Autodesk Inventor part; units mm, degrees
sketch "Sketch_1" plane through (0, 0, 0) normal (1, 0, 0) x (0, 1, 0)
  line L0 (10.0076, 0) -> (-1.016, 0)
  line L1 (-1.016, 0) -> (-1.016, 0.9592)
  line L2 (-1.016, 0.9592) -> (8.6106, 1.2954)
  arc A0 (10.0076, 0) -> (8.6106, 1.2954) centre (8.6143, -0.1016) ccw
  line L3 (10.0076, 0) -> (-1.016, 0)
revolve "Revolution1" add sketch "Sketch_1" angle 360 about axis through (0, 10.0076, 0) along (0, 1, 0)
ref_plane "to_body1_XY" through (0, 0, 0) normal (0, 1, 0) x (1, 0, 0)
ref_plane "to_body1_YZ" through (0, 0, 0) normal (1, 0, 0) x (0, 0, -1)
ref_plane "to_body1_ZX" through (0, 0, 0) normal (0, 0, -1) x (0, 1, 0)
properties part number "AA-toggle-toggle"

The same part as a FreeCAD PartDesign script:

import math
import FreeCAD as App
import Part
import Sketcher
from FreeCAD import Vector
Q = App.Units.Quantity

doc = App.newDocument("Part")
body = doc.addObject("PartDesign::Body", "Body")

# Sketch on YZ plane
sketch1 = body.newObject("Sketcher::SketchObject", "Sketch")
sketch1.AttachmentSupport = (doc.getObject("YZ_Plane"), [""])
sketch1.MapMode = "FlatFace"
sketch1.addGeometry(Part.LineSegment(Vector(-1, 0, 0), Vector(10, 0, 0)), False)
sketch1.addGeometry(Part.ArcOfCircle(Part.Circle(Vector(8.6, -0.1, 0), Vector(0, 0, 1), 1.4), math.radians(4), math.radians(90)), False)
sketch1.addGeometry(Part.LineSegment(Vector(8.6, 1.3, 0), Vector(-1, 1, 0)), False)
sketch1.addGeometry(Part.LineSegment(Vector(-1, 1, 0), Vector(-1, 0, 0)), False)
sketch1.addConstraint(Sketcher.Constraint("Coincident", 0, 2, 1, 1))
sketch1.addConstraint(Sketcher.Constraint("Coincident", 1, 2, 2, 1))
sketch1.addConstraint(Sketcher.Constraint("Coincident", 2, 2, 3, 1))
sketch1.addConstraint(Sketcher.Constraint("Coincident", 3, 2, 0, 1))
sketch1.addConstraint(Sketcher.Constraint("Horizontal", 0))
sketch1.addConstraint(Sketcher.Constraint("Vertical", 3))
sketch1.addConstraint(Sketcher.Constraint("PointOnObject", 0, 2, -1))
sketch1.addConstraint(Sketcher.Constraint("Angle", 2, Q("-177.9998 deg")))
sketch1.addConstraint(Sketcher.Constraint("Radius", 1, Q("0.055 in")))
sketch1.addConstraint(Sketcher.Constraint("DistanceX", 0, 1, 0, 2, Q("0.434 in")))
sketch1.addConstraint(Sketcher.Constraint("DistanceX", 2, 2, -1, 1, Q("0.04 in")))
sketch1.addConstraint(Sketcher.Constraint("DistanceY", 1, 3, -1, 1, Q("0.004 in")))
sketch1.addConstraint(Sketcher.Constraint("DistanceX", -1, 1, 1, 2, Q("0.339 in")))
revolution = body.newObject("PartDesign::Revolution", "Revolution")
revolution.Profile = sketch1
revolution.ReferenceAxis = (sketch1, ["H_Axis"])
revolution.Angle = 360

doc.recompute()
